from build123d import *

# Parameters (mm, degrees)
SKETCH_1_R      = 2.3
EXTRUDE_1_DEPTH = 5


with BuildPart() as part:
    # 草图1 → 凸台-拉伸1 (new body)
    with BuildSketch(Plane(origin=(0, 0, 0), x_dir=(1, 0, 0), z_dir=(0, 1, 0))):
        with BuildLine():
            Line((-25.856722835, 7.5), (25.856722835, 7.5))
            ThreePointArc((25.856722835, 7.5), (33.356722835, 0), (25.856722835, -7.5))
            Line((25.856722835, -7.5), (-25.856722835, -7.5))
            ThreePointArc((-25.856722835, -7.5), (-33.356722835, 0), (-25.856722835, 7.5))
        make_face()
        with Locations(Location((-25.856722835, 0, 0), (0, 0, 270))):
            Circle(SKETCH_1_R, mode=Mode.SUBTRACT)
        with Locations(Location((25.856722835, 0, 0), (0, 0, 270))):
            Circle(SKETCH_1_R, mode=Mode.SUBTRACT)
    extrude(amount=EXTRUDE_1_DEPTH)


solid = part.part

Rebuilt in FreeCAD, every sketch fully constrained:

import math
import FreeCAD as App
import Part
import Sketcher
from FreeCAD import Vector
Q = App.Units.Quantity

doc = App.newDocument("Part")
params = doc.addObject("Spreadsheet::Sheet", "Params")
for row, (alias, value) in enumerate([
    ("sketch1_diameter", "4.6 mm"),
    ("sketch1_radius", "7.5 mm"),
    ("pad1_length", "5 mm"),
], start=1):
    params.set(f"A{row}", alias)
    params.set(f"B{row}", "=" + value)
    params.setAlias(f"B{row}", alias)

body = doc.addObject("PartDesign::Body", "Body")

# Sketch on XZ plane
sketch1 = body.newObject("Sketcher::SketchObject", "Sketch")
sketch1.AttachmentSupport = (doc.getObject("XZ_Plane"), [""])
sketch1.MapMode = "FlatFace"
sketch1.addGeometry(Part.LineSegment(Vector(25.9, -7.5, 0), Vector(-25.9, -7.5, 0)), False)
sketch1.addGeometry(Part.ArcOfCircle(Part.Circle(Vector(-25.9, 0, 0), Vector(0, 0, 1), 7.5), math.radians(90), math.radians(270)), False)
sketch1.addGeometry(Part.LineSegment(Vector(-25.9, 7.5, 0), Vector(25.9, 7.5, 0)), False)
sketch1.addGeometry(Part.ArcOfCircle(Part.Circle(Vector(25.9, 0, 0), Vector(0, 0, 1), 7.5), math.radians(-90), math.radians(90)), False)
sketch1.addGeometry(Part.Circle(Vector(25.9, 0, 0), Vector(0, 0, 1), 2.3), False)
sketch1.addGeometry(Part.Circle(Vector(-25.9, 0, 0), Vector(0, 0, 1), 2.3), False)
sketch1.addConstraint(Sketcher.Constraint("Tangent", 0, 2, 1, 2))
sketch1.addConstraint(Sketcher.Constraint("Tangent", 1, 1, 2, 1))
sketch1.addConstraint(Sketcher.Constraint("Tangent", 2, 2, 3, 2))
sketch1.addConstraint(Sketcher.Constraint("Tangent", 3, 1, 0, 1))
sketch1.addConstraint(Sketcher.Constraint("Horizontal", 0))
sketch1.addConstraint(Sketcher.Constraint("Horizontal", 2))
sketch1.addConstraint(Sketcher.Constraint("Coincident", 4, 3, 3, 3))
sketch1.addConstraint(Sketcher.Constraint("Coincident", 5, 3, 1, 3))
sketch1.addConstraint(Sketcher.Constraint("Equal", 4, 5))
sketch1.addConstraint(Sketcher.Constraint("Symmetric", 1, 3, 3, 3, -1, 1))
sketch1.addConstraint(Sketcher.Constraint("Diameter", 4, Q("4.6 mm")))
sketch1.addConstraint(Sketcher.Constraint("Radius", 1, Q("7.5 mm")))
sketch1.addConstraint(Sketcher.Constraint("DistanceX", 0, 2, 0, 1, Q("51.713446 mm")))
sketch1.setExpression("Constraints[10]", "Params.sketch1_diameter")
sketch1.setExpression("Constraints[11]", "Params.sketch1_radius")
pad1 = body.newObject("PartDesign::Pad", "Pad")
pad1.Profile = sketch1
pad1.setExpression("Length", "Params.pad1_length")
pad1.Reversed = True

doc.recompute()
